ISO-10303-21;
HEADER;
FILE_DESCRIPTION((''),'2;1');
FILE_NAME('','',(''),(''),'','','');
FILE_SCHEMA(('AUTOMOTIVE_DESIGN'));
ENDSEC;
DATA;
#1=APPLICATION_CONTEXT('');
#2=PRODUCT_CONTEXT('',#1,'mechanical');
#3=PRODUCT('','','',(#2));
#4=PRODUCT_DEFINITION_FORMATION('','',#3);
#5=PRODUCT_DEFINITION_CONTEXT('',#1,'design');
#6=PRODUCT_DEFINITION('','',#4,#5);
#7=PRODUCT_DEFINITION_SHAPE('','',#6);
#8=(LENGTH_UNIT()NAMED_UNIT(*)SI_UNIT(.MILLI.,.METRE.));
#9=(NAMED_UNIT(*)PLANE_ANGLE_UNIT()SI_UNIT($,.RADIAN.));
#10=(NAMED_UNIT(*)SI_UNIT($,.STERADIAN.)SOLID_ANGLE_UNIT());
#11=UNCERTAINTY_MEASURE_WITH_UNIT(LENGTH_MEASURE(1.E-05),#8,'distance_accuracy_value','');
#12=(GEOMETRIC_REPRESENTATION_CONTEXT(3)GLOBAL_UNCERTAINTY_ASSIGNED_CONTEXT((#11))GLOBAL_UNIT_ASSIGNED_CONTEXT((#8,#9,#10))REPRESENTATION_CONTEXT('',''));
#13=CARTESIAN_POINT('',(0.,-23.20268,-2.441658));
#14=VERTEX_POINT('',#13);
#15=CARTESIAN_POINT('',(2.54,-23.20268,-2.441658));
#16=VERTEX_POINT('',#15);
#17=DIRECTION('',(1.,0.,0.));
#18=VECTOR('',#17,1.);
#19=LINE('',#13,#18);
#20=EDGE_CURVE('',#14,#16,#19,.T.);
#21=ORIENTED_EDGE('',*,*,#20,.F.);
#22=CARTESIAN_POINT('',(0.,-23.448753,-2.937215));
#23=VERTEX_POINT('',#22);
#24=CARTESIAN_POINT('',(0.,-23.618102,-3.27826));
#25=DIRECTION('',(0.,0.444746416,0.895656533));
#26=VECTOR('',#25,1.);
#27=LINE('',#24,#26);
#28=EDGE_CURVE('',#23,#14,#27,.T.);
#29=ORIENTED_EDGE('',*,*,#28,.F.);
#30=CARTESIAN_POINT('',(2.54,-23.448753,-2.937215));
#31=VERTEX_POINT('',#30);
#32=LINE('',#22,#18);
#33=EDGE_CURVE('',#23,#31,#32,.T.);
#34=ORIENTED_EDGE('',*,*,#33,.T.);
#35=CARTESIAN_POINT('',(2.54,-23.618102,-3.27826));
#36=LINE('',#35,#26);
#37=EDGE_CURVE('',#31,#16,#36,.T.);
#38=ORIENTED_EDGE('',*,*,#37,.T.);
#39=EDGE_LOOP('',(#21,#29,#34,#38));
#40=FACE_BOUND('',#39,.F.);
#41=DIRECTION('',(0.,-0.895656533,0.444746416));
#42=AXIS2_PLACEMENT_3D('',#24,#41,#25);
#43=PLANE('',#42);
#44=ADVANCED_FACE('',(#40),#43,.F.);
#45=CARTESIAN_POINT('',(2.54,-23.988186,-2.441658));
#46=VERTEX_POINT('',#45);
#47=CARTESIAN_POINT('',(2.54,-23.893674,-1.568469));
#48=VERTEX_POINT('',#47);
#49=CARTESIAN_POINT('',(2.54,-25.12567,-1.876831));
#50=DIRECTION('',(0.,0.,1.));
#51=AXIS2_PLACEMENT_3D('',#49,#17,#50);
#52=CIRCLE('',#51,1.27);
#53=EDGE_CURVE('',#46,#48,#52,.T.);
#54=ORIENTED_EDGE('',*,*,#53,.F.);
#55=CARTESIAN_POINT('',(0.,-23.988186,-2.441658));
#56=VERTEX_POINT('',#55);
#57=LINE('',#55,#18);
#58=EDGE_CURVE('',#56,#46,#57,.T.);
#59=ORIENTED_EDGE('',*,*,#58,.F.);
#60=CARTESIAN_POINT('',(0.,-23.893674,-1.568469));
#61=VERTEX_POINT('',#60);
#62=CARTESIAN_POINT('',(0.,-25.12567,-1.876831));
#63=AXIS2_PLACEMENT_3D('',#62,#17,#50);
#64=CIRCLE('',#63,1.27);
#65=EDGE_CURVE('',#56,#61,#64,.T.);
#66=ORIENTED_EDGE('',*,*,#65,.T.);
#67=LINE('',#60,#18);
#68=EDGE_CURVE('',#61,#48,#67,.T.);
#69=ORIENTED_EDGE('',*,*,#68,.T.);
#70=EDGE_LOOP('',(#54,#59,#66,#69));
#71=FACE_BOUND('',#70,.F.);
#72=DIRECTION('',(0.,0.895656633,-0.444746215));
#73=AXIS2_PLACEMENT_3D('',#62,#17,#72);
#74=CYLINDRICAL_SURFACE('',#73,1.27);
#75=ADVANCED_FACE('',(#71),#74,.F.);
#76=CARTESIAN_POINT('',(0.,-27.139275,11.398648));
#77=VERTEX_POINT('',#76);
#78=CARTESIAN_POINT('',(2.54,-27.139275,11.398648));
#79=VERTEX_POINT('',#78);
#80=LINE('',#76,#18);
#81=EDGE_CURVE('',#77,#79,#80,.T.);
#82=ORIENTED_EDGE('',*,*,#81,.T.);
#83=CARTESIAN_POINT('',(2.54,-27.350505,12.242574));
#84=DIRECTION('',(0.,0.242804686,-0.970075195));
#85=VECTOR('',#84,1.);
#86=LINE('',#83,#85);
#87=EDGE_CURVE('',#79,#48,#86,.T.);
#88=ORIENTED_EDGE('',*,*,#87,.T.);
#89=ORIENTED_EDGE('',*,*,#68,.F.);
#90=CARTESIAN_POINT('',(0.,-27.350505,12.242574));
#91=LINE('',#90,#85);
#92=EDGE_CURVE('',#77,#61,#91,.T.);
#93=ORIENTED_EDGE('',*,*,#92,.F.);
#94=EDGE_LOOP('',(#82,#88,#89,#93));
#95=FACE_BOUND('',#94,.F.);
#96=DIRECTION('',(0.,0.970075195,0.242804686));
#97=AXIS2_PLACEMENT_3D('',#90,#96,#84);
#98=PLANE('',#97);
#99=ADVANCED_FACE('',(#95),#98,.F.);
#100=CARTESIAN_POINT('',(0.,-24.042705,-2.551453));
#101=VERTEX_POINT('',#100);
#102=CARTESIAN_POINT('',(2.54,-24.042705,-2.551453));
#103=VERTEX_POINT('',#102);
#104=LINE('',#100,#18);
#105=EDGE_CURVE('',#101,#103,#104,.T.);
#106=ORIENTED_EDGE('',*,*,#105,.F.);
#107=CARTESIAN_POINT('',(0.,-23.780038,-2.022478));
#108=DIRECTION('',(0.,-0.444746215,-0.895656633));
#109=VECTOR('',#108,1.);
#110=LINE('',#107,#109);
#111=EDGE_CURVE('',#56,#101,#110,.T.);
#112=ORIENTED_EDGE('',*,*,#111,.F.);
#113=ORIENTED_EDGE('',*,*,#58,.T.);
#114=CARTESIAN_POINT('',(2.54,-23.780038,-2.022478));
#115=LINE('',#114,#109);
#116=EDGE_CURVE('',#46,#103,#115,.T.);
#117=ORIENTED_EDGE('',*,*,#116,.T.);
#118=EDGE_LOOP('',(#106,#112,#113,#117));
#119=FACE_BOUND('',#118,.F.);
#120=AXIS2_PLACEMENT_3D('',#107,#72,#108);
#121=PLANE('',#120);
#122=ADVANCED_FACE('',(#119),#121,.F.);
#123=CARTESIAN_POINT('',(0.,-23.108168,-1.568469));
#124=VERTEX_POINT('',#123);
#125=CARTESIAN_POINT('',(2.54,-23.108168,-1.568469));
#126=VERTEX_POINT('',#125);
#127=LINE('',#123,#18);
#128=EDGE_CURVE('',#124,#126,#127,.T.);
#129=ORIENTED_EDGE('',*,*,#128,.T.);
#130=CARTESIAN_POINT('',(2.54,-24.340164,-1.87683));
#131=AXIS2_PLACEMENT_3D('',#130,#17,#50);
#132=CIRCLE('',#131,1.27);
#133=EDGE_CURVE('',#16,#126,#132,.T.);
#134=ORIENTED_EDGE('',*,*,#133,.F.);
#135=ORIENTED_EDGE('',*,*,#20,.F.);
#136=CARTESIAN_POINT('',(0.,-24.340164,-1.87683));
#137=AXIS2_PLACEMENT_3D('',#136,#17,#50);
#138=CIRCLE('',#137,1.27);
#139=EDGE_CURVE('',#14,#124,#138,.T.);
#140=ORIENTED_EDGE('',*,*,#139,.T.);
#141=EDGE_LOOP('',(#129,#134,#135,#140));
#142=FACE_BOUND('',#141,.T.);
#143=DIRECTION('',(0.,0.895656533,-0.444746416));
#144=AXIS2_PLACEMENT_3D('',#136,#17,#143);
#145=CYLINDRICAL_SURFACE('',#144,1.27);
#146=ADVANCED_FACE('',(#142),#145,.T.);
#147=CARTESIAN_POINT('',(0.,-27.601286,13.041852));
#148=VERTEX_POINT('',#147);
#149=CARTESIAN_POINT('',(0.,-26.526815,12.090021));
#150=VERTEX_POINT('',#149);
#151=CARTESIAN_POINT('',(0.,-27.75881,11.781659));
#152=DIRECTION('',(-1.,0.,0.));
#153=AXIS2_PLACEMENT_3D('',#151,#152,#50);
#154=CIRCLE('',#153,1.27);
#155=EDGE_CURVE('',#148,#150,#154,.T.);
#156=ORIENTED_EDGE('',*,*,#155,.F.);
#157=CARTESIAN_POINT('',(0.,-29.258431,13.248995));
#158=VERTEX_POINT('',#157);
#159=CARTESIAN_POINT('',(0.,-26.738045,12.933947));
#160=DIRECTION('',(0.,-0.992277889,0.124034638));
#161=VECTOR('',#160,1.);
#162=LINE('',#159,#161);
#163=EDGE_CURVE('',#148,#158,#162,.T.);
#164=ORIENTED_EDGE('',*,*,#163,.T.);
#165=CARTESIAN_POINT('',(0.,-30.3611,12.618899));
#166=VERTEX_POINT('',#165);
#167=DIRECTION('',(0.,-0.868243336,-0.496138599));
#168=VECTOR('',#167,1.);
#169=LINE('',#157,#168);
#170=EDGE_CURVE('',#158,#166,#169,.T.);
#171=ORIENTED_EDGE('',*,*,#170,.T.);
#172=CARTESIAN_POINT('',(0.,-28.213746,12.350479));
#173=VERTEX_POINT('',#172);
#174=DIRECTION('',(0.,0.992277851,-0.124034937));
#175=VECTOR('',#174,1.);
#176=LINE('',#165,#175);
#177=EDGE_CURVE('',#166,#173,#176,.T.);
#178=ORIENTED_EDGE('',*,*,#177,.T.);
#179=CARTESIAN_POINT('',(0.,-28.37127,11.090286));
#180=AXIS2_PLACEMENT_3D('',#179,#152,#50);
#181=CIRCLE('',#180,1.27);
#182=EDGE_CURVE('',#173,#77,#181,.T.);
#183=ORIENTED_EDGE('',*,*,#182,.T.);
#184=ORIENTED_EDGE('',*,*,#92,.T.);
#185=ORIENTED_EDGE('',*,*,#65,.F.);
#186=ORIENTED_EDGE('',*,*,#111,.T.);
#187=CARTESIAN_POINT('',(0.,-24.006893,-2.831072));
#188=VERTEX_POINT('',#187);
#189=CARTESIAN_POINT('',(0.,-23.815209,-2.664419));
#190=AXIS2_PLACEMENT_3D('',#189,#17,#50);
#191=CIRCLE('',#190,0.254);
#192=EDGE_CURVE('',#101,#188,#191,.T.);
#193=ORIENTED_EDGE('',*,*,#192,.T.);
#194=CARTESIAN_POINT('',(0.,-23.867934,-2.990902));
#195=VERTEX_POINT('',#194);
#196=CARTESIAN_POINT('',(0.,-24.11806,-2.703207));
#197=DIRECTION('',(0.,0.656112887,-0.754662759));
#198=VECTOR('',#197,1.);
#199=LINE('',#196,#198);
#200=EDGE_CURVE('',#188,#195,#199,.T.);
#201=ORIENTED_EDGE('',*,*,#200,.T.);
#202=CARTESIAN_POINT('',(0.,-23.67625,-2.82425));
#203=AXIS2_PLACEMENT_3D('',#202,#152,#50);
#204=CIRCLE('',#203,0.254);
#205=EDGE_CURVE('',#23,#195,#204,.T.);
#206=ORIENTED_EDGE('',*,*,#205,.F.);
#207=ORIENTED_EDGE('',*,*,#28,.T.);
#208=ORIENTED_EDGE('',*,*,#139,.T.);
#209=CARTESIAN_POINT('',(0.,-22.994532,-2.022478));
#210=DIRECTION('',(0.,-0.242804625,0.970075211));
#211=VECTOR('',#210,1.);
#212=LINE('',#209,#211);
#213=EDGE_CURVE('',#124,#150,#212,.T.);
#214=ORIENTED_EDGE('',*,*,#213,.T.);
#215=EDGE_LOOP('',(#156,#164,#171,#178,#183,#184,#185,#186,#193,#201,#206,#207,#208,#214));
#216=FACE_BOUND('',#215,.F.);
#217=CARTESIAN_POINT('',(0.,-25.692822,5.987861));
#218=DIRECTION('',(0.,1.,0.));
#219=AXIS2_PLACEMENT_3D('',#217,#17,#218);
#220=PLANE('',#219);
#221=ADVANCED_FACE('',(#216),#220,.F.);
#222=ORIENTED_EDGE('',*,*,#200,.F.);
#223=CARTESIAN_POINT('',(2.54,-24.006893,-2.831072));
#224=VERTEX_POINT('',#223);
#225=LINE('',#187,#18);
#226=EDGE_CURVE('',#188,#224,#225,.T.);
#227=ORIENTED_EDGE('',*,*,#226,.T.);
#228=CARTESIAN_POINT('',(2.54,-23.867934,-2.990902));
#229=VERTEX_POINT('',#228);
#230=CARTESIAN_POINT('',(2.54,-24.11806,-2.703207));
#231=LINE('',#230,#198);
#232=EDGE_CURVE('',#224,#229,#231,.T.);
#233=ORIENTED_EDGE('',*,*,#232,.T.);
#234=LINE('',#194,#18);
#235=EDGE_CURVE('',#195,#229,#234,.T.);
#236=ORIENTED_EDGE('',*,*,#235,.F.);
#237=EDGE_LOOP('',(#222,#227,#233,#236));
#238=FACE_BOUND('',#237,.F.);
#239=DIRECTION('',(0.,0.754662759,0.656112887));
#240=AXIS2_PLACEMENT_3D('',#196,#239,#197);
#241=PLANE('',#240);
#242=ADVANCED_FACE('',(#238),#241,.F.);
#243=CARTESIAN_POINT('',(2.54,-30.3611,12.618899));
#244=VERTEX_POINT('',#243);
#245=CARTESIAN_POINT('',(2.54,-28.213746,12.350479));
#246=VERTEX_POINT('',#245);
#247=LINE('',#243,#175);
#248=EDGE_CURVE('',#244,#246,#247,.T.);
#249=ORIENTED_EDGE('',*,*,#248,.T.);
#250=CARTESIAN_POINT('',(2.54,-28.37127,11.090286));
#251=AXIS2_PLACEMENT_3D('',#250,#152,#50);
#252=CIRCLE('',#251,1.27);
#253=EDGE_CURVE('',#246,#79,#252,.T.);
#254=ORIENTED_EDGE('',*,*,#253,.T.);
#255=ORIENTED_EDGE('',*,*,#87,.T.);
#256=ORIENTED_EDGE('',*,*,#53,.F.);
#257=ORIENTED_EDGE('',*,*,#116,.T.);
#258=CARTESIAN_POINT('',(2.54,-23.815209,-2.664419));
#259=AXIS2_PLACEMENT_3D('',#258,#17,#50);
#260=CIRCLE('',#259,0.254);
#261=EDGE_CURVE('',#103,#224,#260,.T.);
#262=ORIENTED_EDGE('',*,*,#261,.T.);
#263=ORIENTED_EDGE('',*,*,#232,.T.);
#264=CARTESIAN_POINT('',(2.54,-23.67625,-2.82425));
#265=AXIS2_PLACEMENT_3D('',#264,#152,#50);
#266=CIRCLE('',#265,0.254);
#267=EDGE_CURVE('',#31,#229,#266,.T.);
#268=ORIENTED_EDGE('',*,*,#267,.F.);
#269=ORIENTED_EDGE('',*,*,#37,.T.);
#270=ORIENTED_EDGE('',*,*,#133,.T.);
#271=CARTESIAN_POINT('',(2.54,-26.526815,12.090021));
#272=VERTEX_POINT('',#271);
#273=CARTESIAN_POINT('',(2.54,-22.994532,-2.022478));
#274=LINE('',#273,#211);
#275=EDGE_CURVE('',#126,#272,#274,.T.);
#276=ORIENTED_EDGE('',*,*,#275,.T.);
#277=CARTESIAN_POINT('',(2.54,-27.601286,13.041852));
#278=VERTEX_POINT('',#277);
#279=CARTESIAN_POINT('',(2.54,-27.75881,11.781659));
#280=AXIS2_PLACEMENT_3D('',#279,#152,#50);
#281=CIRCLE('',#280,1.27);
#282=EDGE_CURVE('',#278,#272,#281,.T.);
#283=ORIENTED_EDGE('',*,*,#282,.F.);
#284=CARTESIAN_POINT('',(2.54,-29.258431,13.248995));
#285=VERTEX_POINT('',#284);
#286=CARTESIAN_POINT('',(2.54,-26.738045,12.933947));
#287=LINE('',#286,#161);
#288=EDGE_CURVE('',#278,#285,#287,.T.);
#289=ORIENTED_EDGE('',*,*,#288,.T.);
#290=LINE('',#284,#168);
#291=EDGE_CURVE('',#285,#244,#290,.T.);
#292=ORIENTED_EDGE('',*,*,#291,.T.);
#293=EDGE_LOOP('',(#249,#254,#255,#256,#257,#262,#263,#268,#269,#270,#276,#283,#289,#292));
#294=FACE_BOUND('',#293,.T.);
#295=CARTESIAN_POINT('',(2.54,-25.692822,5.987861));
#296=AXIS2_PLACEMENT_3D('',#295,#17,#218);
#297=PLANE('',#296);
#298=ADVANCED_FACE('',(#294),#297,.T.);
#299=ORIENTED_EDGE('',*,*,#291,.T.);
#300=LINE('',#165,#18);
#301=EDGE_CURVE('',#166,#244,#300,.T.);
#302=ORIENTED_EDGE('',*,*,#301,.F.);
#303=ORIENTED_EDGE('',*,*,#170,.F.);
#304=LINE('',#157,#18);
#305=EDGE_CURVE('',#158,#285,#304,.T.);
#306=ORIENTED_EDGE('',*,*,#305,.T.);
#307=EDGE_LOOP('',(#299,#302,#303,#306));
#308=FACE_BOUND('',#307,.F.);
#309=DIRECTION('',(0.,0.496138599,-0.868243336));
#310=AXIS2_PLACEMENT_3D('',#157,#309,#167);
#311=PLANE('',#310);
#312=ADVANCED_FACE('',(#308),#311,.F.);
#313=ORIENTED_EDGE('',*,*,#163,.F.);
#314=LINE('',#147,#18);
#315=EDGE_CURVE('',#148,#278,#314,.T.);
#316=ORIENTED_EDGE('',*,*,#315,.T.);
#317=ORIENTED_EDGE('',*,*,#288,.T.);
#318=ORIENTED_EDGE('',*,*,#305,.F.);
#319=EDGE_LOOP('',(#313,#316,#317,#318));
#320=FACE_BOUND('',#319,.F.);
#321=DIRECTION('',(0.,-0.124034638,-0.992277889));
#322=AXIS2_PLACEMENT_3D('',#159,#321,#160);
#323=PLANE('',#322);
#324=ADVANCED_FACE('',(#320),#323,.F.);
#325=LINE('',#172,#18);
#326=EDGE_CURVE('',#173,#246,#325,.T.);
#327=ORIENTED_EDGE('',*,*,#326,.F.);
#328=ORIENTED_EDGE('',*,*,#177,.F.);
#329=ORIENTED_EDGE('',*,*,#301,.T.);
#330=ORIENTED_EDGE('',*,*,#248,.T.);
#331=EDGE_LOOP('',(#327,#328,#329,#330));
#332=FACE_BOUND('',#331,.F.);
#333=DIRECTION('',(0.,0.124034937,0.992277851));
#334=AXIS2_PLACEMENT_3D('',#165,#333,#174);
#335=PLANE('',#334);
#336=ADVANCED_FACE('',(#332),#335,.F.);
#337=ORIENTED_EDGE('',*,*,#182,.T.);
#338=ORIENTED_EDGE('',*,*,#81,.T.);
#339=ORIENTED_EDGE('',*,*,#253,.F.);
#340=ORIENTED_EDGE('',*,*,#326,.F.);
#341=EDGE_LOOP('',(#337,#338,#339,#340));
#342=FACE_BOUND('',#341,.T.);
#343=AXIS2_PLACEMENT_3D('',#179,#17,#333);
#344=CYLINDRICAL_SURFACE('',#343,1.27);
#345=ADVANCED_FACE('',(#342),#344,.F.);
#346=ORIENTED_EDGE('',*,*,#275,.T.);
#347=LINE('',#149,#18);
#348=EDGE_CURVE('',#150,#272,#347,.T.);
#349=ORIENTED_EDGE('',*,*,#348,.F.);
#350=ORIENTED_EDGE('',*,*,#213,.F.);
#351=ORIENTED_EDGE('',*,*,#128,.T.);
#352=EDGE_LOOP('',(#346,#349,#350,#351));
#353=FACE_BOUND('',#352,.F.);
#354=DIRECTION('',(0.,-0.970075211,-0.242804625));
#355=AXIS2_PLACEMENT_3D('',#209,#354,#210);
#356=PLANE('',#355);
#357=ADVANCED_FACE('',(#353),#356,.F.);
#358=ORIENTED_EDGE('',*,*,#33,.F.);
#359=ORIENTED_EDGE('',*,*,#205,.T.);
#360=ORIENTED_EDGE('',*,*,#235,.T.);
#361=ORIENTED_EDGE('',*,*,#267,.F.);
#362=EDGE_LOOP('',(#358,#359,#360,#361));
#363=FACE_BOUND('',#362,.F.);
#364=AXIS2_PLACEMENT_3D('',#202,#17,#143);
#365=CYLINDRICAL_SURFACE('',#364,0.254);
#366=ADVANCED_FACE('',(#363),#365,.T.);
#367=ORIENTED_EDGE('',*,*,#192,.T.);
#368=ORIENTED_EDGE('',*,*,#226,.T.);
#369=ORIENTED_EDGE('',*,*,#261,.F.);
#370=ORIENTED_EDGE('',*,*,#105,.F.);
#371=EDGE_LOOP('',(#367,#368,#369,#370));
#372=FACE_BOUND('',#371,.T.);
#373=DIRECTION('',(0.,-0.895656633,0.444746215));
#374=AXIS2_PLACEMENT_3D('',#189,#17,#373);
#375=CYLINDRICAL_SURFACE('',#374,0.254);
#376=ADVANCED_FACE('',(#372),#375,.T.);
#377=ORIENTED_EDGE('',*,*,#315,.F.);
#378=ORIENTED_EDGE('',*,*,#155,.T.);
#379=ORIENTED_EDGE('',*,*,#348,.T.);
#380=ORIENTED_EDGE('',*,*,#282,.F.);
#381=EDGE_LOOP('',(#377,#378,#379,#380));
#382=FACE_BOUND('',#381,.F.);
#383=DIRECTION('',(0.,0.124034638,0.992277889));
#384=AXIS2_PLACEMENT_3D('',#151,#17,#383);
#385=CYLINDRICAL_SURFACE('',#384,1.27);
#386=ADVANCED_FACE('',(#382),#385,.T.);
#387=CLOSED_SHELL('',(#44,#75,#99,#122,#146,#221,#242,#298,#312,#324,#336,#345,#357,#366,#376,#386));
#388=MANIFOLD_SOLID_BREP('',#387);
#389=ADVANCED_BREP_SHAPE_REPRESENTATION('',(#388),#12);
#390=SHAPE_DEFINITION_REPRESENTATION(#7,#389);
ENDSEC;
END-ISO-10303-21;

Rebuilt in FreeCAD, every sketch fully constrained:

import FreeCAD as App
import Part
import Sketcher
Q = App.Units.Quantity


def edges_at(feature, points):
    """Names of the edges that pass closest to the given points."""
    edges = feature.Shape.Edges
    near = lambda p: min(range(len(edges)), key=lambda i: edges[i].distToShape(Part.Vertex(*p))[0])
    return sorted({f"Edge{near(p) + 1}" for p in points})


def add_polygon(sketch, points):
    """Adds a closed chain of lines whose ends are joined by coincident constraints."""
    first, n = sketch.GeometryCount, len(points)
    for a, b in zip(points, points[1:] + points[:1]):
        sketch.addGeometry(Part.LineSegment(App.Vector(*a, 0), App.Vector(*b, 0)), False)
    for i in range(n):
        sketch.addConstraint(Sketcher.Constraint("Coincident", first + i, 2, first + (i + 1) % n, 1))

doc = App.newDocument("Part")
body = doc.addObject("PartDesign::Body", "Body")

# Sketch on YZ plane
sketch1 = doc.addObject("Sketcher::SketchObject", "Sketch")
body.addObject(sketch1)
sketch1.AttachmentSupport = (doc.YZ_Plane, [""])
sketch1.MapMode = "FlatFace"
add_polygon(sketch1, [(-29.3, 13.2), (-30.4, 12.6), (-27.4, 12.2), (-23.8, -2), (-24.1, -2.7), (-23.6, -3.3), (-23, -2), (-26.7, 12.9)])  # lines 0-7
sketch1.addConstraint([
    Sketcher.Constraint("Parallel", 3, 5),
    Sketcher.Constraint("Parallel", 2, 6),
    Sketcher.Constraint("Parallel", 1, 7),
    Sketcher.Constraint("Horizontal", 2, 2, 5, 2),
    Sketcher.Constraint("Distance", 7, Q("0.1 in")),
    Sketcher.Constraint("Distance", 0, Q("0.05 in")),
    Sketcher.Constraint("Distance", 4, Q("0.03 in")),
    Sketcher.Constraint("Distance", 6, Q("0.607 in")),
    Sketcher.Constraint("Distance", 5, Q("0.0552 in")),
    Sketcher.Constraint("Distance", 2, Q("14.705099 mm")),
    Sketcher.Constraint("DistanceX", 0, 2, -1, 1, Q("30.3611 mm")),
    Sketcher.Constraint("DistanceY", -1, 1, 0, 2, Q("12.618899 mm")),
    Sketcher.Constraint("DistanceX", 7, 2, 5, 2, Q("6.263899 mm")),
    Sketcher.Constraint("DistanceX", 2, 2, -1, 1, Q("23.780038 mm")),
    Sketcher.Constraint("DistanceY", 2, 2, -1, 1, Q("2.022478 mm")),
    Sketcher.Constraint("DistanceY", 4, 2, -1, 1, Q("3.27826 mm")),
])
pad1 = doc.addObject("PartDesign::Pad", "Pad")
body.addObject(pad1)
pad1.Profile = sketch1
pad1.Length = Q("0.1 in")
doc.recompute()

fillet = doc.addObject("PartDesign::Fillet", "Fillet")
body.addObject(fillet)
fillet.Base = (pad1, edges_at(pad1, [(1.27, -22.995, -2.022)]))
fillet.Radius = Q("0.05 in")
doc.recompute()

fillet2 = doc.addObject("PartDesign::Fillet", "Fillet001")
body.addObject(fillet2)
fillet2.Base = (fillet, edges_at(fillet, [(1.27, -23.618, -3.278)]))
fillet2.Radius = Q("0.01 in")
doc.recompute()

fillet3 = doc.addObject("PartDesign::Fillet", "Fillet002")
body.addObject(fillet3)
fillet3.Base = (fillet2, edges_at(fillet2, [(1.27, -23.78, -2.022)]))
fillet3.Radius = Q("0.05 in")
doc.recompute()

fillet4 = doc.addObject("PartDesign::Fillet", "Fillet003")
body.addObject(fillet4)
fillet4.Base = (fillet3, edges_at(fillet3, [(1.27, -24.118, -2.703)]))
fillet4.Radius = Q("0.01 in")
doc.recompute()

fillet5 = doc.addObject("PartDesign::Fillet", "Fillet004")
body.addObject(fillet5)
fillet5.Base = (fillet4, edges_at(fillet4, [(1.27, -26.738, 12.934)]))
fillet5.Radius = Q("0.05 in")
doc.recompute()

fillet6 = doc.addObject("PartDesign::Fillet", "Fillet005")
body.addObject(fillet6)
fillet6.Base = (fillet5, edges_at(fillet5, [(1.27, -27.351, 12.243)]))
fillet6.Radius = Q("0.05 in")

doc.recompute()
